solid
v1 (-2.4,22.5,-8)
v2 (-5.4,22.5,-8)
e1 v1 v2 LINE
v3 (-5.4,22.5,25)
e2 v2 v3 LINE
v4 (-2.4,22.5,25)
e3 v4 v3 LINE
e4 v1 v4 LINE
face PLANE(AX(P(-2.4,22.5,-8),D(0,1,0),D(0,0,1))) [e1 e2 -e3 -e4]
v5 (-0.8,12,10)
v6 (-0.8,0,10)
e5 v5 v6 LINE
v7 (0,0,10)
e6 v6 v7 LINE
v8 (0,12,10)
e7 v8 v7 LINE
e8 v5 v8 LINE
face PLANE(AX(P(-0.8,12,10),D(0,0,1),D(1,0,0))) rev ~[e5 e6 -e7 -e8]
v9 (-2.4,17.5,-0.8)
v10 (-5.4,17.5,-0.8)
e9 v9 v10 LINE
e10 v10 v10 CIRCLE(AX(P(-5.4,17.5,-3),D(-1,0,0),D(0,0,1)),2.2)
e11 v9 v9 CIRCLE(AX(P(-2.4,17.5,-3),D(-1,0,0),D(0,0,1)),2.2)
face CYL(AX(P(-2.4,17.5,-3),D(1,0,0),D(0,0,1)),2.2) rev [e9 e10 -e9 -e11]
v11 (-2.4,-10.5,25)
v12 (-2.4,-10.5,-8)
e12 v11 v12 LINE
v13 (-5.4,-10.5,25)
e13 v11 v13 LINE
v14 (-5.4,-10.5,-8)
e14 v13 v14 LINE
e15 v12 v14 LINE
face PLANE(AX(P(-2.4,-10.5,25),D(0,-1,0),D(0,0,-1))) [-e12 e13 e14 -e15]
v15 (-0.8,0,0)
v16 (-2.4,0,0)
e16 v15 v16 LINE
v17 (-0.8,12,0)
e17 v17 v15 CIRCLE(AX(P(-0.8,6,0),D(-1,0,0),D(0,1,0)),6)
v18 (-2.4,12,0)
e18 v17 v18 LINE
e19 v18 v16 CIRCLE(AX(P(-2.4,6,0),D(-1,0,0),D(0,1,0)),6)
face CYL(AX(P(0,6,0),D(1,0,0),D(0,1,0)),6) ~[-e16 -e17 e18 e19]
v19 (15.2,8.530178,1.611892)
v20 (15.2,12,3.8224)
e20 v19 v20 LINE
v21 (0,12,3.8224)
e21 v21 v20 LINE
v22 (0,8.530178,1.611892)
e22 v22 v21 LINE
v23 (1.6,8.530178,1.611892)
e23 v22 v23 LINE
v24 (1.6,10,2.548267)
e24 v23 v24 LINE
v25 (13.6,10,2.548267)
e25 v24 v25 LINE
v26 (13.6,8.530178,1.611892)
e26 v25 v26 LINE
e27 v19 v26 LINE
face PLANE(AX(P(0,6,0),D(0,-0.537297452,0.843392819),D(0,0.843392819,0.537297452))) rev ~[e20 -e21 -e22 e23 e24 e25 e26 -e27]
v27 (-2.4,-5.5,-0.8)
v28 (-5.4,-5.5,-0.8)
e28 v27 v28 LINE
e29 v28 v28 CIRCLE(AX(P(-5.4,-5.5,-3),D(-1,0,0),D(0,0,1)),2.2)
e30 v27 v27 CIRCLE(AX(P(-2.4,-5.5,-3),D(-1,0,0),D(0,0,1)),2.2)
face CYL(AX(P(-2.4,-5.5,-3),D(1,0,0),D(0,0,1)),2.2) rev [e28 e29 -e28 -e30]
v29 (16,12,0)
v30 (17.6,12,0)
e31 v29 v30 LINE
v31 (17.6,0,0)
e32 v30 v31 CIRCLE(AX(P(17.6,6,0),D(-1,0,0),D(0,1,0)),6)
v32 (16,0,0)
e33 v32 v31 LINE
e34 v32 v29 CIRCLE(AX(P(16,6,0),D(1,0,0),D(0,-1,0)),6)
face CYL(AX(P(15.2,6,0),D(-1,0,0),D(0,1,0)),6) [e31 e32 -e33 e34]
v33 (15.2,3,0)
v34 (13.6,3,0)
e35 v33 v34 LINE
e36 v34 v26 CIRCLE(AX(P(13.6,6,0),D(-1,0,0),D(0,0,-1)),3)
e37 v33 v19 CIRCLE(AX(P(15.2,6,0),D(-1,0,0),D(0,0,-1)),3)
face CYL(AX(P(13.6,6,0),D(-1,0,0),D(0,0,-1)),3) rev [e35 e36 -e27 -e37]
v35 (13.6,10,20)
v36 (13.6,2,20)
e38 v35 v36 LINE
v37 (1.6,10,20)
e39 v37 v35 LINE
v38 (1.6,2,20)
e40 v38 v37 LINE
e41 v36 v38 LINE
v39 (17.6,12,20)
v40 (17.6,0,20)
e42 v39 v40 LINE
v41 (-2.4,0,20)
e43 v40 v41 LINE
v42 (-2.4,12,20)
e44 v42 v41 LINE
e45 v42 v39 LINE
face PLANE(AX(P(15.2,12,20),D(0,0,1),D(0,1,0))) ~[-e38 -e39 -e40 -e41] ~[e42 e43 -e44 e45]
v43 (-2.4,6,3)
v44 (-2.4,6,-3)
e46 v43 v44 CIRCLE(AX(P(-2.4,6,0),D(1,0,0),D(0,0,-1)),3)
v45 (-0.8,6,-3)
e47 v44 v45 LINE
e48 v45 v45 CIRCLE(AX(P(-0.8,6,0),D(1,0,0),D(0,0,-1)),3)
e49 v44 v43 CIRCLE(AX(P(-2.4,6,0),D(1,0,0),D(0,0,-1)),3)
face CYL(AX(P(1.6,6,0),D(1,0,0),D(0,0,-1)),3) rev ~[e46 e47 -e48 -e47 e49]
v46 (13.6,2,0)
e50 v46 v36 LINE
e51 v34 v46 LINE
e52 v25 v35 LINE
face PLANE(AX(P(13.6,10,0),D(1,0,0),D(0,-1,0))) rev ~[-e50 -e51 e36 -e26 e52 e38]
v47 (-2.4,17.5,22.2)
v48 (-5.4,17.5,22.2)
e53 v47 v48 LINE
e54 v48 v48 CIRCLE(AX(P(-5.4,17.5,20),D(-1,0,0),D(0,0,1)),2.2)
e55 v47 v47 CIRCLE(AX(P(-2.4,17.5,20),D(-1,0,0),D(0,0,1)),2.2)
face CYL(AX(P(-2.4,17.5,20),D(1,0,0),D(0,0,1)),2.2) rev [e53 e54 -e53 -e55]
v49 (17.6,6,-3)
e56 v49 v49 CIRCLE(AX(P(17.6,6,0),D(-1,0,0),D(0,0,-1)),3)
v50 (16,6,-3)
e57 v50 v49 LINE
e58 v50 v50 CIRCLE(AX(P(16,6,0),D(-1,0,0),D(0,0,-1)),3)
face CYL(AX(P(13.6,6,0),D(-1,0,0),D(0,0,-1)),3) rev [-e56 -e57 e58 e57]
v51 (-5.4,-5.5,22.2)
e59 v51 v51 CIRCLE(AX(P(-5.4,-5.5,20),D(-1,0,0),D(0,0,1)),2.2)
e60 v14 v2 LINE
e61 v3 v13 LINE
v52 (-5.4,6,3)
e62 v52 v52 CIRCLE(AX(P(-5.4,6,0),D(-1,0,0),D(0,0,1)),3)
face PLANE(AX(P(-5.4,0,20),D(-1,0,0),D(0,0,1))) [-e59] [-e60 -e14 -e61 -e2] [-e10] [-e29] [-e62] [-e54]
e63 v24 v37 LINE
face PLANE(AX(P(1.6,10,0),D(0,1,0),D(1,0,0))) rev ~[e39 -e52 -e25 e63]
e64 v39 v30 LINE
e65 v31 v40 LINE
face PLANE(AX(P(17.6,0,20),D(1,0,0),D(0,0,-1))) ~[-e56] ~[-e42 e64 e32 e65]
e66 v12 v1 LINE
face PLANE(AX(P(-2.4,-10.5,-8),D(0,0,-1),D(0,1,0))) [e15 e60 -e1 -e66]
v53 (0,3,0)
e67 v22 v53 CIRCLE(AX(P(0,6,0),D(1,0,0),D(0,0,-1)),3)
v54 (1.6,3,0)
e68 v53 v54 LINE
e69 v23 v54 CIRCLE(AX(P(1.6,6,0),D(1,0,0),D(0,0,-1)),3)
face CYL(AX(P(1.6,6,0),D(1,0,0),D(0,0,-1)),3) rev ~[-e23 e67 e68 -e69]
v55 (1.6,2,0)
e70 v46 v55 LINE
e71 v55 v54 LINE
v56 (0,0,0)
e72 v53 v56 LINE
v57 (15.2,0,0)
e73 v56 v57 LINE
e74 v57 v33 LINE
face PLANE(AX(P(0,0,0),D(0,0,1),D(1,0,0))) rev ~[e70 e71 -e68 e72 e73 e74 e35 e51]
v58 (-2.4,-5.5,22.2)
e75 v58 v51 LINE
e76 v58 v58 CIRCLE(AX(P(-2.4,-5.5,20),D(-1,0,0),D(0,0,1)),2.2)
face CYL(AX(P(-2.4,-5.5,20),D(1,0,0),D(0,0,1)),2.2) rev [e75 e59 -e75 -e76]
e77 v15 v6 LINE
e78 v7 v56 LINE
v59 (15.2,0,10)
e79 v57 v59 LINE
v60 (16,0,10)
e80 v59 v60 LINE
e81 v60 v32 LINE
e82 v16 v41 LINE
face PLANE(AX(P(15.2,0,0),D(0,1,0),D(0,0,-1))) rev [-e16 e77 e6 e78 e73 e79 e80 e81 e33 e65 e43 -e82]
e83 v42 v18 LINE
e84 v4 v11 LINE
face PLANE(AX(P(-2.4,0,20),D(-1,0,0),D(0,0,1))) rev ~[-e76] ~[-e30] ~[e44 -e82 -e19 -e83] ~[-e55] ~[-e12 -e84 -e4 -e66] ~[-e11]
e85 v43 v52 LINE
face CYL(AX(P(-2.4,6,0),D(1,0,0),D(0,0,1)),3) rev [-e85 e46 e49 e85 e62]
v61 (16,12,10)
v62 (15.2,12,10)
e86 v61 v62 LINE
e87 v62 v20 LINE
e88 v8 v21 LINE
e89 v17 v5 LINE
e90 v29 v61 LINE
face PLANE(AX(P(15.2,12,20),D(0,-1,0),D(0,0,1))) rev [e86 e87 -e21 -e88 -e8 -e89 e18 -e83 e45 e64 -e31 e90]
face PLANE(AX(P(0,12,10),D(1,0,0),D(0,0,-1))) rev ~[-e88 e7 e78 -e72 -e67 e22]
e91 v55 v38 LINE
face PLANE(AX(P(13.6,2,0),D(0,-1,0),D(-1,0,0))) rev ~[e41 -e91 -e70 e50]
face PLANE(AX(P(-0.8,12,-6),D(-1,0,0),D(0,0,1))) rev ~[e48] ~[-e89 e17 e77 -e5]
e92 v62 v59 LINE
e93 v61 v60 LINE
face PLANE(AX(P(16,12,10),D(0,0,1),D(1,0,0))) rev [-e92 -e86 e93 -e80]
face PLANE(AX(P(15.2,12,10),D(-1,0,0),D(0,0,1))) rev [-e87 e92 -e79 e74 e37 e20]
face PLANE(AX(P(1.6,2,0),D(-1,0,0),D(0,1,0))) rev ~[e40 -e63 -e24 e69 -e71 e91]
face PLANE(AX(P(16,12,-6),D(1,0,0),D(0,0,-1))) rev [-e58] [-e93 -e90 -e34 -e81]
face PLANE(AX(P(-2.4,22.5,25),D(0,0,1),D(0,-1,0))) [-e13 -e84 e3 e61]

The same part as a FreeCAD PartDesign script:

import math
import FreeCAD as App
import Part
import Sketcher
Q = App.Units.Quantity

doc = App.newDocument("Part")
body = doc.addObject("PartDesign::Body", "Body")

# Sketch on XY plane
sketch1 = doc.addObject("Sketcher::SketchObject", "Sketch")
body.addObject(sketch1)
sketch1.AttachmentSupport = (doc.XY_Plane, [""])
sketch1.MapMode = "FlatFace"
sketch1.addGeometry([
    Part.LineSegment(App.Vector(0, 12, 0), App.Vector(0, 0, 0)),  # 0
    Part.LineSegment(App.Vector(0, 0, 0), App.Vector(15.2, 0, 0)),  # 1
    Part.LineSegment(App.Vector(15.2, 0, 0), App.Vector(15.2, 12, 0)),  # 2
    Part.LineSegment(App.Vector(15.2, 12, 0), App.Vector(0, 12, 0)),  # 3
    Part.LineSegment(App.Vector(1.6, 2, 0), App.Vector(1.6, 10, 0)),  # 4
    Part.LineSegment(App.Vector(1.6, 10, 0), App.Vector(13.6, 10, 0)),  # 5
    Part.LineSegment(App.Vector(13.6, 10, 0), App.Vector(13.6, 2, 0)),  # 6
    Part.LineSegment(App.Vector(13.6, 2, 0), App.Vector(1.6, 2, 0)),  # 7
], False)
sketch1.addConstraint([
    Sketcher.Constraint("Coincident", 0, 2, 1, 1),
    Sketcher.Constraint("Coincident", 1, 2, 2, 1),
    Sketcher.Constraint("Coincident", 2, 2, 3, 1),
    Sketcher.Constraint("Coincident", 3, 2, 0, 1),
    Sketcher.Constraint("Coincident", 4, 2, 5, 1),
    Sketcher.Constraint("Coincident", 5, 2, 6, 1),
    Sketcher.Constraint("Coincident", 6, 2, 7, 1),
    Sketcher.Constraint("Coincident", 7, 2, 4, 1),
    Sketcher.Constraint("Vertical", 0),
    Sketcher.Constraint("Horizontal", 1),
    Sketcher.Constraint("Vertical", 2),
    Sketcher.Constraint("Horizontal", 3),
    Sketcher.Constraint("Vertical", 4),
    Sketcher.Constraint("Horizontal", 5),
    Sketcher.Constraint("Vertical", 6),
    Sketcher.Constraint("Horizontal", 7),
    Sketcher.Constraint("Coincident", 0, 2, -1, 1),
    Sketcher.Constraint("Equal", 7, 0),
    Sketcher.Constraint("DistanceX", 5, 1, 5, 2, 12.0),
    Sketcher.Constraint("DistanceX", 1, 1, 1, 2, 15.2),
    Sketcher.Constraint("DistanceY", -1, 1, 6, 2, 2.0),
    Sketcher.Constraint("DistanceY", 4, 2, 3, 2, 2.0),
    Sketcher.Constraint("DistanceX", -1, 1, 4, 2, 1.6),
])
pad1 = doc.addObject("PartDesign::Pad", "Pad")
body.addObject(pad1)
pad1.Profile = sketch1
pad1.Length = 20

# Sketch on YZ plane
sketch2 = doc.addObject("Sketcher::SketchObject", "Sketch001")
body.addObject(sketch2)
sketch2.AttachmentSupport = (doc.YZ_Plane, [""])
sketch2.MapMode = "FlatFace"
sketch2.addGeometry([
    Part.LineSegment(App.Vector(12, 3.8224, 0), App.Vector(6, 0, 0)),
    Part.LineSegment(App.Vector(6, 0, 0), App.Vector(12, 0, 0)),
    Part.LineSegment(App.Vector(12, 0, 0), App.Vector(12, 3.8224, 0)),
], False)
sketch2.addConstraint([
    Sketcher.Constraint("Coincident", 0, 2, 1, 1),
    Sketcher.Constraint("Coincident", 1, 2, 2, 1),
    Sketcher.Constraint("Coincident", 2, 2, 0, 1),
    Sketcher.Constraint("Horizontal", 1),
    Sketcher.Constraint("Vertical", 2),
    Sketcher.Constraint("PointOnObject", 0, 2, -1),
    Sketcher.Constraint("DistanceX", 1, 1, 1, 2, 6.0),
    Sketcher.Constraint("DistanceX", -1, 1, 0, 2, 6.0),
    Sketcher.Constraint("Angle", 0, Q("-147.5001 deg")),
])
pocket1 = doc.addObject("PartDesign::Pocket", "Pocket")
body.addObject(pocket1)
pocket1.Profile = sketch2
pocket1.Type = "ThroughAll"
pocket1.Reversed = True

# Sketch on YZ plane
sketch3 = doc.addObject("Sketcher::SketchObject", "Sketch002")
body.addObject(sketch3)
sketch3.AttachmentSupport = (doc.YZ_Plane, [""])
sketch3.MapMode = "FlatFace"
sketch3.addGeometry([
    Part.ArcOfCircle(Part.Circle(App.Vector(6, 0, 0), App.Vector(0, 0, 1), 6), math.radians(180), math.radians(360)),
    Part.LineSegment(App.Vector(0, 0, 0), App.Vector(0, 20, 0)),
    Part.LineSegment(App.Vector(0, 20, 0), App.Vector(12, 20, 0)),
    Part.LineSegment(App.Vector(12, 20, 0), App.Vector(12, 0, 0)),
], False)
sketch3.addConstraint([
    Sketcher.Constraint("Tangent", 0, 1, 1, 1),
    Sketcher.Constraint("Coincident", 1, 2, 2, 1),
    Sketcher.Constraint("Coincident", 2, 2, 3, 1),
    Sketcher.Constraint("Tangent", 3, 2, 0, 2),
    Sketcher.Constraint("Vertical", 1),
    Sketcher.Constraint("Horizontal", 2),
    Sketcher.Constraint("Vertical", 3),
    Sketcher.Constraint("Coincident", 0, 1, -1, 1),
    Sketcher.Constraint("Radius", 0, 6.0),
    Sketcher.Constraint("DistanceY", 1, 1, 1, 2, 20.0),
])
pad2 = doc.addObject("PartDesign::Pad", "Pad001")
body.addObject(pad2)
pad2.Profile = sketch3
pad2.Length = 2.4
pad2.Reversed = True

# Sketch on YZ plane
sketch4 = doc.addObject("Sketcher::SketchObject", "Sketch003")
body.addObject(sketch4)
sketch4.AttachmentSupport = (doc.YZ_Plane, [""])
sketch4.MapMode = "FlatFace"
sketch4.AttachmentOffset = App.Placement(App.Vector(0, 0, 1.6), App.Rotation())
sketch4.addGeometry(Part.Circle(App.Vector(6, 0, 0), App.Vector(0, 0, 1), 3), False)
sketch4.addConstraint([
    Sketcher.Constraint("PointOnObject", 0, 3, -1),
    Sketcher.Constraint("Diameter", 0, 6.0),
    Sketcher.Constraint("DistanceX", -1, 1, 0, 3, 6.0),
])
pocket2 = doc.addObject("PartDesign::Pocket", "Pocket001")
body.addObject(pocket2)
pocket2.Profile = sketch4
pocket2.Type = "ThroughAll"
pocket2.Midplane = True

# Sketch on XZ plane
sketch5 = doc.addObject("Sketcher::SketchObject", "Sketch004")
body.addObject(sketch5)
sketch5.AttachmentSupport = (doc.XZ_Plane, [""])
sketch5.MapMode = "FlatFace"
sketch5.AttachmentOffset = App.Placement(App.Vector(0, 0, -12), App.Rotation())
sketch5.addGeometry([
    Part.LineSegment(App.Vector(0, 10, 0), App.Vector(0, -6, 0)),
    Part.LineSegment(App.Vector(0, -6, 0), App.Vector(-0.8, -6, 0)),
    Part.LineSegment(App.Vector(-0.8, -6, 0), App.Vector(-0.8, 10, 0)),
    Part.LineSegment(App.Vector(-0.8, 10, 0), App.Vector(0, 10, 0)),
], False)
sketch5.addConstraint([
    Sketcher.Constraint("Coincident", 0, 2, 1, 1),
    Sketcher.Constraint("Coincident", 1, 2, 2, 1),
    Sketcher.Constraint("Coincident", 2, 2, 3, 1),
    Sketcher.Constraint("Coincident", 3, 2, 0, 1),
    Sketcher.Constraint("Vertical", 0),
    Sketcher.Constraint("Horizontal", 1),
    Sketcher.Constraint("Vertical", 2),
    Sketcher.Constraint("Horizontal", 3),
    Sketcher.Constraint("PointOnObject", 0, 2, -2),
    Sketcher.Constraint("DistanceX", 1, 2, 1, 1, 0.8),
    Sketcher.Constraint("DistanceY", -1, 1, 2, 2, 10.0),
    Sketcher.Constraint("DistanceY", 0, 2, 0, 1, 16.0),
])
pocket3 = doc.addObject("PartDesign::Pocket", "Pocket002")
body.addObject(pocket3)
pocket3.Profile = sketch5
pocket3.Type = "ThroughAll"
pocket3.Reversed = True
doc.recompute()

datumplane = doc.addObject("PartDesign::Plane", "DatumPlane")
body.addObject(datumplane)
datumplane.AttachmentSupport = (doc.YZ_Plane, [""])
datumplane.MapMode = "FlatFace"
datumplane.AttachmentOffset = App.Placement(App.Vector(0, 0, 7.6), App.Rotation())
mirrored = doc.addObject("PartDesign::Mirrored", "Mirrored")
body.addObject(mirrored)
mirrored.Originals = [pad2, pocket2, pocket3]
mirrored.MirrorPlane = (datumplane, [""])
body.Tip = mirrored

# Sketch on YZ plane
sketch6 = doc.addObject("Sketcher::SketchObject", "Sketch005")
body.addObject(sketch6)
sketch6.AttachmentSupport = (doc.YZ_Plane, [""])
sketch6.MapMode = "FlatFace"
sketch6.AttachmentOffset = App.Placement(App.Vector(0, 0, -2.4), App.Rotation())
sketch6.addGeometry([
    Part.LineSegment(App.Vector(-10.5, -8, 0), App.Vector(-10.5, 25, 0)),  # 0
    Part.LineSegment(App.Vector(-10.5, 25, 0), App.Vector(22.5, 25, 0)),  # 1
    Part.LineSegment(App.Vector(22.5, 25, 0), App.Vector(22.5, -8, 0)),  # 2
    Part.LineSegment(App.Vector(22.5, -8, 0), App.Vector(-10.5, -8, 0)),  # 3
    Part.Circle(App.Vector(-5.5, -3, 0), App.Vector(0, 0, 1), 2.2),  # 4
    Part.Circle(App.Vector(-5.5, 20, 0), App.Vector(0, 0, 1), 2.2),  # 5
    Part.Circle(App.Vector(6, 0, 0), App.Vector(0, 0, 1), 3),  # 6
    Part.Circle(App.Vector(17.5, -3, 0), App.Vector(0, 0, 1), 2.2),  # 7
    Part.Circle(App.Vector(17.5, 20, 0), App.Vector(0, 0, 1), 2.2),  # 8
], False)
sketch6.addConstraint([
    Sketcher.Constraint("Coincident", 0, 2, 1, 1),
    Sketcher.Constraint("Coincident", 1, 2, 2, 1),
    Sketcher.Constraint("Coincident", 2, 2, 3, 1),
    Sketcher.Constraint("Coincident", 3, 2, 0, 1),
    Sketcher.Constraint("Vertical", 0),
    Sketcher.Constraint("Horizontal", 1),
    Sketcher.Constraint("Vertical", 2),
    Sketcher.Constraint("Horizontal", 3),
    Sketcher.Constraint("Equal", 4, 5),
    Sketcher.Constraint("Equal", 5, 7),
    Sketcher.Constraint("Equal", 7, 8),
    Sketcher.Constraint("PointOnObject", 6, 3, -1),
    Sketcher.Constraint("Horizontal", 4, 3, 7, 3),
    Sketcher.Constraint("Horizontal", 5, 3, 8, 3),
    Sketcher.Constraint("Vertical", 4, 3, 5, 3),
    Sketcher.Constraint("Vertical", 7, 3, 8, 3),
    Sketcher.Constraint("Equal", 3, 0),
    Sketcher.Constraint("Diameter", 4, 4.4),
    Sketcher.Constraint("DistanceX", 1, 1, 1, 2, 33.0),
    Sketcher.Constraint("Diameter", 6, 6.0),
    Sketcher.Constraint("DistanceY", 4, 3, 5, 3, 23.0),
    Sketcher.Constraint("DistanceX", 4, 3, 7, 3, 23.0),
    Sketcher.Constraint("DistanceX", 0, 2, 5, 3, 5.0),
    Sketcher.Constraint("DistanceY", 5, 3, 0, 2, 5.0),
    Sketcher.Constraint("DistanceX", 0, 2, 6, 3, 16.5),
    Sketcher.Constraint("DistanceY", 4, 3, -1, 1, 3.0),
    Sketcher.Constraint("DistanceX", -1, 1, 6, 3, 6.0),
])
pad3 = doc.addObject("PartDesign::Pad", "Pad002")
body.addObject(pad3)
pad3.Profile = sketch6
pad3.Length = 3
pad3.Reversed = True

doc.recompute()
